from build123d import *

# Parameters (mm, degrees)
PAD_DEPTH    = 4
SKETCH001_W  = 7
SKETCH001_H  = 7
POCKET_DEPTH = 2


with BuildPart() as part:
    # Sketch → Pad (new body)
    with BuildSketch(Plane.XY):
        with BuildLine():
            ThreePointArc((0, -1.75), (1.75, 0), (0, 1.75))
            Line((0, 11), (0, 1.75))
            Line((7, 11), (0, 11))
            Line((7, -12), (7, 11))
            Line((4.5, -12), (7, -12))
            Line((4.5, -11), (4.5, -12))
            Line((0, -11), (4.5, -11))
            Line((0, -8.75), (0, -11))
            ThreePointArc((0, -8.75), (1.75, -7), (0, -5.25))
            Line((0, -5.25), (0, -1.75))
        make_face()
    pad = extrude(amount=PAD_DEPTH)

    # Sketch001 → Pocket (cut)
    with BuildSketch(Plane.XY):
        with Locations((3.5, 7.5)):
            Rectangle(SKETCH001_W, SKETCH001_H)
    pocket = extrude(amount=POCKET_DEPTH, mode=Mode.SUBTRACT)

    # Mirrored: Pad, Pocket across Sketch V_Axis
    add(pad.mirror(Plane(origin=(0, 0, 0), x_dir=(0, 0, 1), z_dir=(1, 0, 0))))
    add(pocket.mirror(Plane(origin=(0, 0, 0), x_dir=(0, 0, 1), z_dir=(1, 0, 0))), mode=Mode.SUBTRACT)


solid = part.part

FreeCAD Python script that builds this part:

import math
import FreeCAD as App
import Part
import Sketcher

V = App.Vector


def add_polygon(sketch, points):
    """Adds a closed chain of lines whose ends are joined by coincident constraints."""
    first, n = sketch.GeometryCount, len(points)
    for a, b in zip(points, points[1:] + points[:1]):
        sketch.addGeometry(Part.LineSegment(App.Vector(*a, 0), App.Vector(*b, 0)), False)
    for i in range(n):
        sketch.addConstraint(Sketcher.Constraint("Coincident", first + i, 2, first + (i + 1) % n, 1))

doc = App.newDocument("Part")
body = doc.addObject("PartDesign::Body", "Body")

# Sketch on XY plane
sketch1 = body.newObject("Sketcher::SketchObject", "Sketch")
sketch1.AttachmentSupport = (doc.getObject("XY_Plane"), [""])
sketch1.MapMode = "FlatFace"
sketch1.addGeometry(Part.ArcOfCircle(Part.Circle(V(0, 0, 0), V(0, 0, 1), 1.8), math.radians(-90), math.radians(90)), False)
sketch1.addGeometry(Part.LineSegment(V(0, -1.8, 0), V(0, -5.2, 0)), False)
sketch1.addGeometry(Part.ArcOfCircle(Part.Circle(V(0, -7, 0), V(0, 0, 1), 1.8), math.radians(-90), math.radians(90)), False)
sketch1.addGeometry(Part.LineSegment(V(0, -8.8, 0), V(0, -11, 0)), False)
sketch1.addGeometry(Part.LineSegment(V(0, -11, 0), V(4.5, -11, 0)), False)
sketch1.addGeometry(Part.LineSegment(V(4.5, -11, 0), V(4.5, -12, 0)), False)
sketch1.addGeometry(Part.LineSegment(V(4.5, -12, 0), V(7, -12, 0)), False)
sketch1.addGeometry(Part.LineSegment(V(7, -12, 0), V(7, 11, 0)), False)
sketch1.addGeometry(Part.LineSegment(V(7, 11, 0), V(0, 11, 0)), False)
sketch1.addGeometry(Part.LineSegment(V(0, 11, 0), V(0, 1.8, 0)), False)
sketch1.addConstraint(Sketcher.Constraint("Coincident", 0, 1, 1, 1))
sketch1.addConstraint(Sketcher.Constraint("Coincident", 1, 2, 2, 2))
sketch1.addConstraint(Sketcher.Constraint("Coincident", 2, 1, 3, 1))
sketch1.addConstraint(Sketcher.Constraint("Coincident", 3, 2, 4, 1))
sketch1.addConstraint(Sketcher.Constraint("Coincident", 4, 2, 5, 1))
sketch1.addConstraint(Sketcher.Constraint("Coincident", 5, 2, 6, 1))
sketch1.addConstraint(Sketcher.Constraint("Coincident", 6, 2, 7, 1))
sketch1.addConstraint(Sketcher.Constraint("Coincident", 7, 2, 8, 1))
sketch1.addConstraint(Sketcher.Constraint("Coincident", 8, 2, 9, 1))
sketch1.addConstraint(Sketcher.Constraint("Coincident", 9, 2, 0, 2))
sketch1.addConstraint(Sketcher.Constraint("Vertical", 1))
sketch1.addConstraint(Sketcher.Constraint("Vertical", 3))
sketch1.addConstraint(Sketcher.Constraint("Horizontal", 4))
sketch1.addConstraint(Sketcher.Constraint("Vertical", 5))
sketch1.addConstraint(Sketcher.Constraint("Horizontal", 6))
sketch1.addConstraint(Sketcher.Constraint("Vertical", 7))
sketch1.addConstraint(Sketcher.Constraint("Horizontal", 8))
sketch1.addConstraint(Sketcher.Constraint("Vertical", 9))
sketch1.addConstraint(Sketcher.Constraint("Coincident", 0, 3, -1, 1))
sketch1.addConstraint(Sketcher.Constraint("Equal", 0, 2))
sketch1.addConstraint(Sketcher.Constraint("Symmetric", 3, 2, 8, 2, -1, 1))
sketch1.addConstraint(Sketcher.Constraint("PointOnObject", 2, 3, -2))
sketch1.addConstraint(Sketcher.Constraint("PointOnObject", 0, 1, -2))
sketch1.addConstraint(Sketcher.Constraint("PointOnObject", 2, 1, -2))
sketch1.addConstraint(Sketcher.Constraint("DistanceX", 8, 2, 8, 1, 7.0))
sketch1.addConstraint(Sketcher.Constraint("DistanceY", 5, 2, 5, 1, 1.0))
sketch1.addConstraint(Sketcher.Constraint("DistanceY", 7, 1, 7, 2, 23.0))
sketch1.addConstraint(Sketcher.Constraint("Radius", 0, 1.75))
sketch1.addConstraint(Sketcher.Constraint("DistanceX", 4, 1, 4, 2, 4.5))
sketch1.addConstraint(Sketcher.Constraint("DistanceY", 1, 2, 1, 1, 3.5))
pad1 = body.newObject("PartDesign::Pad", "Pad")
pad1.Profile = sketch1
pad1.Length = 4

# Sketch on XY plane
sketch2 = body.newObject("Sketcher::SketchObject", "Sketch001")
sketch2.AttachmentSupport = (doc.getObject("XY_Plane"), [""])
sketch2.MapMode = "FlatFace"
add_polygon(sketch2, [(0, 11), (0, 4), (7, 4), (7, 11)])  # lines 0-3
sketch2.addConstraint(Sketcher.Constraint("Vertical", 0))
sketch2.addConstraint(Sketcher.Constraint("Horizontal", 1))
sketch2.addConstraint(Sketcher.Constraint("Vertical", 2))
sketch2.addConstraint(Sketcher.Constraint("Horizontal", 3))
sketch2.addConstraint(Sketcher.Constraint("PointOnObject", 0, 2, -2))
sketch2.addConstraint(Sketcher.Constraint("Equal", 3, 0))
sketch2.addConstraint(Sketcher.Constraint("DistanceX", 1, 1, 1, 2, 7.0))
sketch2.addConstraint(Sketcher.Constraint("DistanceY", -1, 1, 0, 2, 4.0))
pocket1 = body.newObject("PartDesign::Pocket", "Pocket")
pocket1.Profile = sketch2
pocket1.Length = 2
pocket1.Reversed = True
doc.recompute()

mirrored = body.newObject("PartDesign::Mirrored", "Mirrored")
mirrored.Originals = [pad1, pocket1]
mirrored.MirrorPlane = (doc.getObject("YZ_Plane"), [""])
body.Tip = mirrored

doc.recompute()
